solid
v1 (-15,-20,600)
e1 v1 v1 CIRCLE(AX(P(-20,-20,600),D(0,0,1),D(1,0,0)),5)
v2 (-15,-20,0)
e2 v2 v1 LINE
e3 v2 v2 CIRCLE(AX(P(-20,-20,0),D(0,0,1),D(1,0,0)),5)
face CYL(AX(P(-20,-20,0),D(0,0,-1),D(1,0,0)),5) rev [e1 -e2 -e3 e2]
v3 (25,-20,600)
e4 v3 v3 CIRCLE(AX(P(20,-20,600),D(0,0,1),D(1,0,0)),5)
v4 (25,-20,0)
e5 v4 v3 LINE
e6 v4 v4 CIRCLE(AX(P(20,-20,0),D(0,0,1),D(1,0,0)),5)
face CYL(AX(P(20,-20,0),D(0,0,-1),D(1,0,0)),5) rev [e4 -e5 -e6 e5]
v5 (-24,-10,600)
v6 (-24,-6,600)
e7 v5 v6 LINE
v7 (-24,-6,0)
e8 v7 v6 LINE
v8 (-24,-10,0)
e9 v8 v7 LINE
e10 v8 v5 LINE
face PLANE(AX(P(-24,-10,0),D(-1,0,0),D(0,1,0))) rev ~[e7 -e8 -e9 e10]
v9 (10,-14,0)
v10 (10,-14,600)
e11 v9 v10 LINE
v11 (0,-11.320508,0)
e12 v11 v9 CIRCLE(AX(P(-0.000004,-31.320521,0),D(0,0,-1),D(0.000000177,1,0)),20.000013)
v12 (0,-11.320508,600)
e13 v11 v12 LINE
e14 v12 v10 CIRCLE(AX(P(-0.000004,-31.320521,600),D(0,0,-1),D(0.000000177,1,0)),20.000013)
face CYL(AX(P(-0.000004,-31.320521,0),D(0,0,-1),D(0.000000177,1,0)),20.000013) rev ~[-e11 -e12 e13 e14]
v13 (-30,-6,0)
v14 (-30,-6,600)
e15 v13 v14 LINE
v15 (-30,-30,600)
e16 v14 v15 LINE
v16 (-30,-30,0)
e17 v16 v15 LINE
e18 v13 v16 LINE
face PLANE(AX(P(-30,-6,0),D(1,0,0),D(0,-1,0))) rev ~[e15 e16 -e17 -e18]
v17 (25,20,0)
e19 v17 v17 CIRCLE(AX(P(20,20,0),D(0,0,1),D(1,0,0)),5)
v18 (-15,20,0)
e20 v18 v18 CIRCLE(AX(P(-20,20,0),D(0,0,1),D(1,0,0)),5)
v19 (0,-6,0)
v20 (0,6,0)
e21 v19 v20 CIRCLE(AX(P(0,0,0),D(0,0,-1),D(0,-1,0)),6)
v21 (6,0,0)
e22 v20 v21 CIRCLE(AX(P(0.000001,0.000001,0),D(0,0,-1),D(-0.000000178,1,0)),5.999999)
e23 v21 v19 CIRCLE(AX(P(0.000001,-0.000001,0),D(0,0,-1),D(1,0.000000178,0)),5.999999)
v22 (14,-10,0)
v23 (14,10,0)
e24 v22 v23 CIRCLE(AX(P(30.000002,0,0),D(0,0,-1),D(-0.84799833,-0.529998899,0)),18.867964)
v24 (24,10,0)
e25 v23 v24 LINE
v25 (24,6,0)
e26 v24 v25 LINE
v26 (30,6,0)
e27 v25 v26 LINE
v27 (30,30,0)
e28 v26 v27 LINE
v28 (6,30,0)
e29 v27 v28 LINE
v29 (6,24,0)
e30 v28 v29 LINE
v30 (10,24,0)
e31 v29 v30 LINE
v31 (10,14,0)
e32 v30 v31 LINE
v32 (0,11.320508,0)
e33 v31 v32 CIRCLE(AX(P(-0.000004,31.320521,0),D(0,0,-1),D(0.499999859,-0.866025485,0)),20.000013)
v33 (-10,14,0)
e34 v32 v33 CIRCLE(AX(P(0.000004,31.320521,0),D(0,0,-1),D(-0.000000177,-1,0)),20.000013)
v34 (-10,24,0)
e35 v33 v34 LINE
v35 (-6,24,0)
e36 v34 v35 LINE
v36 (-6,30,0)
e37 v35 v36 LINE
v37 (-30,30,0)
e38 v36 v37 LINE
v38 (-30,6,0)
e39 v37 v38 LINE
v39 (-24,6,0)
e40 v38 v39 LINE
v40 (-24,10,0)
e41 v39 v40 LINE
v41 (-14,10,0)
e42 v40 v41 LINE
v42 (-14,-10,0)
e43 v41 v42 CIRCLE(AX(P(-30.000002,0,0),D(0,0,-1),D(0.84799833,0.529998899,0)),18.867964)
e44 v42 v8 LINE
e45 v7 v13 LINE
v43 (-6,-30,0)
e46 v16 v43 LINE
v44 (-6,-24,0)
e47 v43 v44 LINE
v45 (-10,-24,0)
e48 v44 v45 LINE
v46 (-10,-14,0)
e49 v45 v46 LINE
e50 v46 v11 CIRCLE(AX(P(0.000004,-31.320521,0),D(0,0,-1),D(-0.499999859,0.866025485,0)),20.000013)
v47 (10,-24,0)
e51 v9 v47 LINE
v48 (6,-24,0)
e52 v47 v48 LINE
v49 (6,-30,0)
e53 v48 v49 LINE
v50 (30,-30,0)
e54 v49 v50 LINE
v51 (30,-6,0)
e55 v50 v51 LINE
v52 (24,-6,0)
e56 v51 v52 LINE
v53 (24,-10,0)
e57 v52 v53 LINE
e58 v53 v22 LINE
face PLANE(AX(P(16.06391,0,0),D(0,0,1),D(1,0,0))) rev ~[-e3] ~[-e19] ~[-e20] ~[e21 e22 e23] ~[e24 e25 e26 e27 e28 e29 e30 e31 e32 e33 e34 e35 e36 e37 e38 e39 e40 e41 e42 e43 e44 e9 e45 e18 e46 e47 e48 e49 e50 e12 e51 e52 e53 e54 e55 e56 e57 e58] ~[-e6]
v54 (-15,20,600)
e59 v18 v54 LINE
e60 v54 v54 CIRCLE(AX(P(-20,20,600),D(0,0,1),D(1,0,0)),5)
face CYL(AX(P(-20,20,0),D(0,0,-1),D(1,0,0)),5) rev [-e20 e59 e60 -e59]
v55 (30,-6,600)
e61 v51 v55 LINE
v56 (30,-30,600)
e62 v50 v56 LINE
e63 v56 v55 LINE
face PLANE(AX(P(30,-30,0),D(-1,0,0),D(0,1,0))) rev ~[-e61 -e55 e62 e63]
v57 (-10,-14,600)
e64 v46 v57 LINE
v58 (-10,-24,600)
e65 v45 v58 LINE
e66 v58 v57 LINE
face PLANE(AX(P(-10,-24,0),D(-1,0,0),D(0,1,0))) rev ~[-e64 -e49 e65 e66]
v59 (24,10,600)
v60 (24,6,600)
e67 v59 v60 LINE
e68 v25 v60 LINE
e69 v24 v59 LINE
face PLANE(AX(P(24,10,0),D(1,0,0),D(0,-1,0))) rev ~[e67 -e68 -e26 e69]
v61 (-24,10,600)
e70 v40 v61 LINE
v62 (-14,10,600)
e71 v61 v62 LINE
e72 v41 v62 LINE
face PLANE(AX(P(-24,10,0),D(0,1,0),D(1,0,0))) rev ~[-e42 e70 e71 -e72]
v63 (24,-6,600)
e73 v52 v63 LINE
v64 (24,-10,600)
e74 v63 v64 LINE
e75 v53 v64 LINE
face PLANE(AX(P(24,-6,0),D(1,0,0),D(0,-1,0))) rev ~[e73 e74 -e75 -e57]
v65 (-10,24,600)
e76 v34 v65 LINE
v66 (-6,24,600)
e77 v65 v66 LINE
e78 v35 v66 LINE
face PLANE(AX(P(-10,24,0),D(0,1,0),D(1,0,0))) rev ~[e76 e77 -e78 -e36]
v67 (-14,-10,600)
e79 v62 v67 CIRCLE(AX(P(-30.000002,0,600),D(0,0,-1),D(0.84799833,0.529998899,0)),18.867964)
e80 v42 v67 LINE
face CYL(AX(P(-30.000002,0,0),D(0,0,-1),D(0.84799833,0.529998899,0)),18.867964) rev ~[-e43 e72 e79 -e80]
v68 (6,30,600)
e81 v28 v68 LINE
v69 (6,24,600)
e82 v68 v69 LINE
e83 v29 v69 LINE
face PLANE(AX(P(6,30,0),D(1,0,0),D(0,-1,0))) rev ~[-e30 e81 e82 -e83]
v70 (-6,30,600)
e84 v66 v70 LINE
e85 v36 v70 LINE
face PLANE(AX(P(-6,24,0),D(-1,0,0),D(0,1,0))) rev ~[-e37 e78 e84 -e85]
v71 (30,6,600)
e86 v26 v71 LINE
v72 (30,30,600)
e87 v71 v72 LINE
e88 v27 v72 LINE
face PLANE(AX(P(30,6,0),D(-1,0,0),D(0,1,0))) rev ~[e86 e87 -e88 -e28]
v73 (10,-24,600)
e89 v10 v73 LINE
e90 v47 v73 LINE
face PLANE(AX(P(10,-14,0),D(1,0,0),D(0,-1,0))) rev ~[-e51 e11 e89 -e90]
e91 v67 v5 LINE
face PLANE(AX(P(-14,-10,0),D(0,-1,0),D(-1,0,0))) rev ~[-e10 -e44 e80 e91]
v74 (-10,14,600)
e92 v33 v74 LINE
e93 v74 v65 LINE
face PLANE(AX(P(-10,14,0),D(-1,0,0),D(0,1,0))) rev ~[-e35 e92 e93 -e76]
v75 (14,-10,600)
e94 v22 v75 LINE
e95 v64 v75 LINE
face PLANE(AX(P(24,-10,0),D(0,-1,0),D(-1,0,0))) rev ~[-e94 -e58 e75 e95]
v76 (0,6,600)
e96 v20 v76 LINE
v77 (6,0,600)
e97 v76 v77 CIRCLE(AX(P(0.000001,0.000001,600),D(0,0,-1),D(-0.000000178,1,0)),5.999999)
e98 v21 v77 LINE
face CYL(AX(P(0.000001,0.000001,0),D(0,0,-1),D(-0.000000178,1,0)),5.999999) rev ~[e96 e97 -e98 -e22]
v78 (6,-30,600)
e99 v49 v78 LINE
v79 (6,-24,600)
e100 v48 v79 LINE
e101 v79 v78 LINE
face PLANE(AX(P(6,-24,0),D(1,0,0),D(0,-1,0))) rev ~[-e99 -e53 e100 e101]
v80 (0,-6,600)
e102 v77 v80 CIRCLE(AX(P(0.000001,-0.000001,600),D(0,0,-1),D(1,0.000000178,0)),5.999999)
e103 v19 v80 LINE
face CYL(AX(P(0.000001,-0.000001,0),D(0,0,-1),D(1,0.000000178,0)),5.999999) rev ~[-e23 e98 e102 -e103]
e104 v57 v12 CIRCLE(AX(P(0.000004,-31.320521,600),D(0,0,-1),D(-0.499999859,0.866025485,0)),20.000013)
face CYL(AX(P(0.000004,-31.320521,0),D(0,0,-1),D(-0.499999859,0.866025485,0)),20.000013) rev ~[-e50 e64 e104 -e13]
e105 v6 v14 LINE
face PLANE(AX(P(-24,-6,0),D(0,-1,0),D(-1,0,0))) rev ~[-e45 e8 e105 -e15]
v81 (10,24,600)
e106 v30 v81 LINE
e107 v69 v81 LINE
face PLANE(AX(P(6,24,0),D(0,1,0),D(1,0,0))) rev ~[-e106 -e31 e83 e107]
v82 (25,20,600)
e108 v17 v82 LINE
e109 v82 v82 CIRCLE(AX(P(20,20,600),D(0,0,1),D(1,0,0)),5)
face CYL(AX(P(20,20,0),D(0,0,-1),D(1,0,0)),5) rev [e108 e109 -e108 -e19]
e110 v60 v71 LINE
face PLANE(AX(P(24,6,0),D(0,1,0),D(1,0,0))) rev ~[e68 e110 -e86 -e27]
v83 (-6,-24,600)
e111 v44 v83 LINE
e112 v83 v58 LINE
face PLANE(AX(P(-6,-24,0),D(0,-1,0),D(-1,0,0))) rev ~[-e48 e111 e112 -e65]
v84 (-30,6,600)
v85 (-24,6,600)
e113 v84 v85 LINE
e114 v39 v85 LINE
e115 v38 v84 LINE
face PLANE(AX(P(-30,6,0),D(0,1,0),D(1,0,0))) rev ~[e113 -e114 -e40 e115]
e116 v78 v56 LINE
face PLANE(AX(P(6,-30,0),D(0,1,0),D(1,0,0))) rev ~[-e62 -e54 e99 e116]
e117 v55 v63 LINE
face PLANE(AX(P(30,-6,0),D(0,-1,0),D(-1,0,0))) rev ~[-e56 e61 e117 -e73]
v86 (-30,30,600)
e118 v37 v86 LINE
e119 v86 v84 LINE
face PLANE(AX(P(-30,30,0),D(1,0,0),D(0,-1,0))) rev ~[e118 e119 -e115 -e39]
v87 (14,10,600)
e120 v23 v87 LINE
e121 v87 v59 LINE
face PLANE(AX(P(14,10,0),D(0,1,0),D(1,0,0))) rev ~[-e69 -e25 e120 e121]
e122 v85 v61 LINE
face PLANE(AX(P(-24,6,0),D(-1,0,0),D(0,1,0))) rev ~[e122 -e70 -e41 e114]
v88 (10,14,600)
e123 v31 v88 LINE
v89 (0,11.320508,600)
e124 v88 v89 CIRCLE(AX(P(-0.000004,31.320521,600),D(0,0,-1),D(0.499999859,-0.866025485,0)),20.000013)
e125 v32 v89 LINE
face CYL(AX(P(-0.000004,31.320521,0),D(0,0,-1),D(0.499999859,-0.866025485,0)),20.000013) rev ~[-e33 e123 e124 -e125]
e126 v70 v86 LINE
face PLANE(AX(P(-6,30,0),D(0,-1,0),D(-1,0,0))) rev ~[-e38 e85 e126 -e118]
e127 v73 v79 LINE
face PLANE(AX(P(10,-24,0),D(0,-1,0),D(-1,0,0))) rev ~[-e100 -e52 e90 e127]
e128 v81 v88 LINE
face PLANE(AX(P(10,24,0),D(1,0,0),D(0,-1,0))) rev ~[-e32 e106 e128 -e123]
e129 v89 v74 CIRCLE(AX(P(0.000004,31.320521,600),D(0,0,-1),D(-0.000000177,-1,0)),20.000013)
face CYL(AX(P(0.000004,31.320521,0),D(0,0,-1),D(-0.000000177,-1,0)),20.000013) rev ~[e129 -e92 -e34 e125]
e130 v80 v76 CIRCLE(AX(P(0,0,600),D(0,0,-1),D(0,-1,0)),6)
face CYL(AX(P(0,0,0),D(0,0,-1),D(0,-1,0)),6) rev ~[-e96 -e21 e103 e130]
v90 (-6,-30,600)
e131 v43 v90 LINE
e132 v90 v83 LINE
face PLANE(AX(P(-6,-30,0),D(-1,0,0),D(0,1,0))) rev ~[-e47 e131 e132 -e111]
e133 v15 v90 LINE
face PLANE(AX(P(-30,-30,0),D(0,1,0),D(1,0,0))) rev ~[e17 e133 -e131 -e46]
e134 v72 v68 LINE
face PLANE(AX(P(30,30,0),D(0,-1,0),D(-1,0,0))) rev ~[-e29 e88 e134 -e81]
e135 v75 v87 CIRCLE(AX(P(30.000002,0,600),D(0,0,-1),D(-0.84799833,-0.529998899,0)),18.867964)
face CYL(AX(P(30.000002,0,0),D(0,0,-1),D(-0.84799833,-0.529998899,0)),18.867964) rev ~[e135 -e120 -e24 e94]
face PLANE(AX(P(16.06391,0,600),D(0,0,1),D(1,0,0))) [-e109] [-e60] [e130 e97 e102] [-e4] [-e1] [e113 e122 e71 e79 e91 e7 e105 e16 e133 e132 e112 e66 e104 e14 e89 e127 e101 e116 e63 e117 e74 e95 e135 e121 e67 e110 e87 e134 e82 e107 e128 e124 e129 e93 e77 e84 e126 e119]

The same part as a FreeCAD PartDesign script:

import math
import FreeCAD as App
import Part
import Sketcher

V = App.Vector
Q = App.Units.Quantity

doc = App.newDocument("Part")
body = doc.addObject("PartDesign::Body", "Body")

sketch1 = body.newObject("Sketcher::SketchObject", "Sketch")
sketch1.AttachmentSupport = (doc.getObject("XY_Plane"), [""])
sketch1.MapMode = "FlatFace"
sketch1.addGeometry(Part.LineSegment(V(30, 6, 0), V(30, 30, 0)), False)
sketch1.addGeometry(Part.LineSegment(V(30, 30, 0), V(6, 30, 0)), False)
sketch1.addGeometry(Part.LineSegment(V(6, 30, 0), V(6, 24, 0)), False)
sketch1.addGeometry(Part.LineSegment(V(6, 24, 0), V(10, 24, 0)), False)
sketch1.addGeometry(Part.LineSegment(V(10, 24, 0), V(10, 14, 0)), False)
sketch1.addGeometry(Part.ArcOfCircle(Part.Circle(V(0, 31.3, 0), V(0, 0, 1), 20), math.radians(-90), math.radians(-60)), False)
sketch1.addGeometry(Part.ArcOfCircle(Part.Circle(V(0, 31.3, 0), V(0, 0, 1), 20), math.radians(-120), math.radians(-90)), False)
sketch1.addGeometry(Part.LineSegment(V(-10, 14, 0), V(-10, 24, 0)), False)
sketch1.addGeometry(Part.LineSegment(V(-10, 24, 0), V(-6, 24, 0)), False)
sketch1.addGeometry(Part.LineSegment(V(-6, 24, 0), V(-6, 30, 0)), False)
sketch1.addGeometry(Part.LineSegment(V(-6, 30, 0), V(-30, 30, 0)), False)
sketch1.addGeometry(Part.LineSegment(V(-30, 30, 0), V(-30, 6, 0)), False)
sketch1.addGeometry(Part.LineSegment(V(-30, 6, 0), V(-24, 6, 0)), False)
sketch1.addGeometry(Part.LineSegment(V(-24, 6, 0), V(-24, 10, 0)), False)
sketch1.addGeometry(Part.LineSegment(V(-24, 10, 0), V(-14, 10, 0)), False)
sketch1.addGeometry(Part.ArcOfCircle(Part.Circle(V(-30, 0, 0), V(0, 0, 1), 18.9), math.radians(-32), math.radians(32)), False)
sketch1.addGeometry(Part.LineSegment(V(-14, -10, 0), V(-24, -10, 0)), False)
sketch1.addGeometry(Part.LineSegment(V(-24, -10, 0), V(-24, -6, 0)), False)
sketch1.addGeometry(Part.LineSegment(V(-24, -6, 0), V(-30, -6, 0)), False)
sketch1.addGeometry(Part.LineSegment(V(-30, -6, 0), V(-30, -30, 0)), False)
sketch1.addGeometry(Part.LineSegment(V(-30, -30, 0), V(-6, -30, 0)), False)
sketch1.addGeometry(Part.LineSegment(V(-6, -30, 0), V(-6, -24, 0)), False)
sketch1.addGeometry(Part.LineSegment(V(-6, -24, 0), V(-10, -24, 0)), False)
sketch1.addGeometry(Part.LineSegment(V(-10, -24, 0), V(-10, -14, 0)), False)
sketch1.addGeometry(Part.ArcOfCircle(Part.Circle(V(0, -31.3, 0), V(0, 0, 1), 20), math.radians(90), math.radians(120)), False)
sketch1.addGeometry(Part.ArcOfCircle(Part.Circle(V(0, -31.3, 0), V(0, 0, 1), 20), math.radians(60), math.radians(90)), False)
sketch1.addGeometry(Part.LineSegment(V(10, -14, 0), V(10, -24, 0)), False)
sketch1.addGeometry(Part.LineSegment(V(10, -24, 0), V(6, -24, 0)), False)
sketch1.addGeometry(Part.LineSegment(V(6, -24, 0), V(6, -30, 0)), False)
sketch1.addGeometry(Part.LineSegment(V(6, -30, 0), V(30, -30, 0)), False)
sketch1.addGeometry(Part.LineSegment(V(30, -30, 0), V(30, -6, 0)), False)
sketch1.addGeometry(Part.LineSegment(V(30, -6, 0), V(24, -6, 0)), False)
sketch1.addGeometry(Part.LineSegment(V(24, -6, 0), V(24, -10, 0)), False)
sketch1.addGeometry(Part.LineSegment(V(24, -10, 0), V(14, -10, 0)), False)
sketch1.addGeometry(Part.ArcOfCircle(Part.Circle(V(30, 0, 0), V(0, 0, 1), 18.9), math.radians(148), math.radians(212)), False)
sketch1.addGeometry(Part.LineSegment(V(14, 10, 0), V(24, 10, 0)), False)
sketch1.addGeometry(Part.LineSegment(V(24, 10, 0), V(24, 6, 0)), False)
sketch1.addGeometry(Part.LineSegment(V(24, 6, 0), V(30, 6, 0)), False)
sketch1.addGeometry(Part.Circle(V(-20, -20, 0), V(0, 0, 1), 5), False)
sketch1.addGeometry(Part.Circle(V(20, -20, 0), V(0, 0, 1), 5), False)
sketch1.addGeometry(Part.Circle(V(-20, 20, 0), V(0, 0, 1), 5), False)
sketch1.addGeometry(Part.ArcOfCircle(Part.Circle(V(0, 0, 0), V(0, 0, 1), 6), math.radians(0), math.radians(90)), False)
sketch1.addGeometry(Part.ArcOfCircle(Part.Circle(V(0, 0, 0), V(0, 0, 1), 6), math.radians(-90), math.radians(0)), False)
sketch1.addGeometry(Part.ArcOfCircle(Part.Circle(V(0, 0, 0), V(0, 0, 1), 6), math.radians(90), math.radians(270)), False)
sketch1.addGeometry(Part.Circle(V(20, 20, 0), V(0, 0, 1), 5), False)
sketch1.addConstraint(Sketcher.Constraint("Coincident", 0, 2, 1, 1))
sketch1.addConstraint(Sketcher.Constraint("Coincident", 1, 2, 2, 1))
sketch1.addConstraint(Sketcher.Constraint("Coincident", 2, 2, 3, 1))
sketch1.addConstraint(Sketcher.Constraint("Coincident", 3, 2, 4, 1))
sketch1.addConstraint(Sketcher.Constraint("Coincident", 4, 2, 5, 2))
sketch1.addConstraint(Sketcher.Constraint("Tangent", 5, 1, 6, 2))
sketch1.addConstraint(Sketcher.Constraint("Coincident", 6, 1, 7, 1))
sketch1.addConstraint(Sketcher.Constraint("Coincident", 7, 2, 8, 1))
sketch1.addConstraint(Sketcher.Constraint("Coincident", 8, 2, 9, 1))
sketch1.addConstraint(Sketcher.Constraint("Coincident", 9, 2, 10, 1))
sketch1.addConstraint(Sketcher.Constraint("Coincident", 10, 2, 11, 1))
sketch1.addConstraint(Sketcher.Constraint("Coincident", 11, 2, 12, 1))
sketch1.addConstraint(Sketcher.Constraint("Coincident", 12, 2, 13, 1))
sketch1.addConstraint(Sketcher.Constraint("Coincident", 13, 2, 14, 1))
sketch1.addConstraint(Sketcher.Constraint("Coincident", 14, 2, 15, 2))
sketch1.addConstraint(Sketcher.Constraint("Coincident", 15, 1, 16, 1))
sketch1.addConstraint(Sketcher.Constraint("Coincident", 16, 2, 17, 1))
sketch1.addConstraint(Sketcher.Constraint("Coincident", 17, 2, 18, 1))
sketch1.addConstraint(Sketcher.Constraint("Coincident", 18, 2, 19, 1))
sketch1.addConstraint(Sketcher.Constraint("Coincident", 19, 2, 20, 1))
sketch1.addConstraint(Sketcher.Constraint("Coincident", 20, 2, 21, 1))
sketch1.addConstraint(Sketcher.Constraint("Coincident", 21, 2, 22, 1))
sketch1.addConstraint(Sketcher.Constraint("Coincident", 22, 2, 23, 1))
sketch1.addConstraint(Sketcher.Constraint("Coincident", 23, 2, 24, 2))
sketch1.addConstraint(Sketcher.Constraint("Tangent", 24, 1, 25, 2))
sketch1.addConstraint(Sketcher.Constraint("Coincident", 25, 1, 26, 1))
sketch1.addConstraint(Sketcher.Constraint("Coincident", 26, 2, 27, 1))
sketch1.addConstraint(Sketcher.Constraint("Coincident", 27, 2, 28, 1))
sketch1.addConstraint(Sketcher.Constraint("Coincident", 28, 2, 29, 1))
sketch1.addConstraint(Sketcher.Constraint("Coincident", 29, 2, 30, 1))
sketch1.addConstraint(Sketcher.Constraint("Coincident", 30, 2, 31, 1))
sketch1.addConstraint(Sketcher.Constraint("Coincident", 31, 2, 32, 1))
sketch1.addConstraint(Sketcher.Constraint("Coincident", 32, 2, 33, 1))
sketch1.addConstraint(Sketcher.Constraint("Coincident", 33, 2, 34, 2))
sketch1.addConstraint(Sketcher.Constraint("Coincident", 34, 1, 35, 1))
sketch1.addConstraint(Sketcher.Constraint("Coincident", 35, 2, 36, 1))
sketch1.addConstraint(Sketcher.Constraint("Coincident", 36, 2, 37, 1))
sketch1.addConstraint(Sketcher.Constraint("Coincident", 37, 2, 0, 1))
sketch1.addConstraint(Sketcher.Constraint("Tangent", 41, 1, 42, 2))
sketch1.addConstraint(Sketcher.Constraint("Tangent", 42, 1, 43, 2))
sketch1.addConstraint(Sketcher.Constraint("Tangent", 43, 1, 41, 2))
sketch1.addConstraint(Sketcher.Constraint("Vertical", 0))
sketch1.addConstraint(Sketcher.Constraint("Horizontal", 1))
sketch1.addConstraint(Sketcher.Constraint("Vertical", 2))
sketch1.addConstraint(Sketcher.Constraint("Horizontal", 3))
sketch1.addConstraint(Sketcher.Constraint("Vertical", 4))
sketch1.addConstraint(Sketcher.Constraint("Vertical", 7))
sketch1.addConstraint(Sketcher.Constraint("Horizontal", 8))
sketch1.addConstraint(Sketcher.Constraint("Vertical", 9))
sketch1.addConstraint(Sketcher.Constraint("Horizontal", 10))
sketch1.addConstraint(Sketcher.Constraint("Vertical", 11))
sketch1.addConstraint(Sketcher.Constraint("Horizontal", 12))
sketch1.addConstraint(Sketcher.Constraint("Vertical", 13))
sketch1.addConstraint(Sketcher.Constraint("Horizontal", 14))
sketch1.addConstraint(Sketcher.Constraint("Horizontal", 16))
sketch1.addConstraint(Sketcher.Constraint("Vertical", 17))
sketch1.addConstraint(Sketcher.Constraint("Horizontal", 18))
sketch1.addConstraint(Sketcher.Constraint("Vertical", 19))
sketch1.addConstraint(Sketcher.Constraint("Horizontal", 20))
sketch1.addConstraint(Sketcher.Constraint("Vertical", 21))
sketch1.addConstraint(Sketcher.Constraint("Horizontal", 22))
sketch1.addConstraint(Sketcher.Constraint("Vertical", 23))
sketch1.addConstraint(Sketcher.Constraint("Vertical", 26))
sketch1.addConstraint(Sketcher.Constraint("Horizontal", 27))
sketch1.addConstraint(Sketcher.Constraint("Vertical", 28))
sketch1.addConstraint(Sketcher.Constraint("Horizontal", 29))
sketch1.addConstraint(Sketcher.Constraint("Vertical", 30))
sketch1.addConstraint(Sketcher.Constraint("Horizontal", 31))
sketch1.addConstraint(Sketcher.Constraint("Vertical", 32))
sketch1.addConstraint(Sketcher.Constraint("Horizontal", 33))
sketch1.addConstraint(Sketcher.Constraint("Horizontal", 35))
sketch1.addConstraint(Sketcher.Constraint("Vertical", 36))
sketch1.addConstraint(Sketcher.Constraint("Horizontal", 37))
sketch1.addConstraint(Sketcher.Constraint("Coincident", 41, 3, -1, 1))
sketch1.addConstraint(Sketcher.Constraint("Equal", 5, 6))
sketch1.addConstraint(Sketcher.Constraint("Equal", 6, 24))
sketch1.addConstraint(Sketcher.Constraint("Equal", 24, 25))
sketch1.addConstraint(Sketcher.Constraint("Equal", 15, 34))
sketch1.addConstraint(Sketcher.Constraint("Equal", 38, 39))
sketch1.addConstraint(Sketcher.Constraint("Equal", 39, 40))
sketch1.addConstraint(Sketcher.Constraint("Equal", 40, 44))
sketch1.addConstraint(Sketcher.Constraint("Symmetric", 5, 3, 24, 3, -1, 1))
sketch1.addConstraint(Sketcher.Constraint("Symmetric", 15, 3, 34, 3, -1, 1))
sketch1.addConstraint(Sketcher.Constraint("Symmetric", 39, 3, 40, 3, -1, 1))
sketch1.addConstraint(Sketcher.Constraint("Symmetric", 38, 3, 44, 3, -1, 1))
sketch1.addConstraint(Sketcher.Constraint("Symmetric", 0, 2, 19, 2, -1, 1))
sketch1.addConstraint(Sketcher.Constraint("Symmetric", 2, 2, 21, 2, -1, 1))
sketch1.addConstraint(Sketcher.Constraint("Symmetric", 7, 2, 26, 2, -1, 1))
sketch1.addConstraint(Sketcher.Constraint("Symmetric", 9, 2, 28, 2, -1, 1))
sketch1.addConstraint(Sketcher.Constraint("Symmetric", 11, 2, 30, 2, -1, 1))
sketch1.addConstraint(Sketcher.Constraint("Symmetric", 13, 2, 32, 2, -1, 1))
sketch1.addConstraint(Sketcher.Constraint("Symmetric", 16, 2, 35, 2, -1, 1))
sketch1.addConstraint(Sketcher.Constraint("Symmetric", 38, 3, 39, 3, -2))
sketch1.addConstraint(Sketcher.Constraint("Symmetric", 4, 2, 6, 1, -2))
sketch1.addConstraint(Sketcher.Constraint("Symmetric", 2, 2, 8, 2, -2))
sketch1.addConstraint(Sketcher.Constraint("Symmetric", 0, 2, 10, 2, -2))
sketch1.addConstraint(Sketcher.Constraint("Symmetric", 17, 2, 31, 2, -2))
sketch1.addConstraint(Sketcher.Constraint("Symmetric", 15, 1, 33, 2, -2))
sketch1.addConstraint(Sketcher.Constraint("PointOnObject", 5, 1, -2))
sketch1.addConstraint(Sketcher.Constraint("PointOnObject", 24, 1, -2))
sketch1.addConstraint(Sketcher.Constraint("PointOnObject", 41, 1, -1))
sketch1.addConstraint(Sketcher.Constraint("PointOnObject", 42, 1, -2))
sketch1.addConstraint(Sketcher.Constraint("PointOnObject", 43, 1, -2))
sketch1.addConstraint(Sketcher.Constraint("Horizontal", 23, 2, 25, 1))
sketch1.addConstraint(Sketcher.Constraint("Horizontal", 12, 2, 36, 2))
sketch1.addConstraint(Sketcher.Constraint("Horizontal", 31, 2, 42, 1))
sketch1.addConstraint(Sketcher.Constraint("Vertical", 34, 3, 0, 2))
sketch1.addConstraint(Sketcher.Constraint("Vertical", 28, 2, 41, 1))
sketch1.addConstraint(Sketcher.Constraint("Equal", 29, 0))
sketch1.addConstraint(Sketcher.Constraint("Equal", 37, 2))
sketch1.addConstraint(Sketcher.Constraint("Equal", 35, 4))
sketch1.addConstraint(Sketcher.Constraint("Equal", 27, 13))
sketch1.addConstraint(Sketcher.Constraint("Diameter", 38, Q("10 mm")))
sketch1.addConstraint(Sketcher.Constraint("Radius", 41, Q("5.999999 mm")))
sketch1.addConstraint(Sketcher.Constraint("DistanceX", 1, 2, 1, 1, Q("24 mm")))
sketch1.addConstraint(Sketcher.Constraint("DistanceX", 3, 1, 3, 2, Q("4 mm")))
sketch1.addConstraint(Sketcher.Constraint("DistanceX", 12, 1, 12, 2, Q("6 mm")))
sketch1.addConstraint(Sketcher.Constraint("DistanceX", 14, 1, 14, 2, Q("10 mm")))
sketch1.addConstraint(Sketcher.Constraint("DistanceX", 38, 3, -1, 1, Q("20 mm")))
sketch1.addConstraint(Sketcher.Constraint("DistanceY", 38, 3, -1, 1, Q("20 mm")))
sketch1.addConstraint(Sketcher.Constraint("Radius", 5, Q("20.000013 mm")))
pad1 = body.newObject("PartDesign::Pad", "Pad")
pad1.Profile = sketch1
pad1.Length = 600

doc.recompute()
